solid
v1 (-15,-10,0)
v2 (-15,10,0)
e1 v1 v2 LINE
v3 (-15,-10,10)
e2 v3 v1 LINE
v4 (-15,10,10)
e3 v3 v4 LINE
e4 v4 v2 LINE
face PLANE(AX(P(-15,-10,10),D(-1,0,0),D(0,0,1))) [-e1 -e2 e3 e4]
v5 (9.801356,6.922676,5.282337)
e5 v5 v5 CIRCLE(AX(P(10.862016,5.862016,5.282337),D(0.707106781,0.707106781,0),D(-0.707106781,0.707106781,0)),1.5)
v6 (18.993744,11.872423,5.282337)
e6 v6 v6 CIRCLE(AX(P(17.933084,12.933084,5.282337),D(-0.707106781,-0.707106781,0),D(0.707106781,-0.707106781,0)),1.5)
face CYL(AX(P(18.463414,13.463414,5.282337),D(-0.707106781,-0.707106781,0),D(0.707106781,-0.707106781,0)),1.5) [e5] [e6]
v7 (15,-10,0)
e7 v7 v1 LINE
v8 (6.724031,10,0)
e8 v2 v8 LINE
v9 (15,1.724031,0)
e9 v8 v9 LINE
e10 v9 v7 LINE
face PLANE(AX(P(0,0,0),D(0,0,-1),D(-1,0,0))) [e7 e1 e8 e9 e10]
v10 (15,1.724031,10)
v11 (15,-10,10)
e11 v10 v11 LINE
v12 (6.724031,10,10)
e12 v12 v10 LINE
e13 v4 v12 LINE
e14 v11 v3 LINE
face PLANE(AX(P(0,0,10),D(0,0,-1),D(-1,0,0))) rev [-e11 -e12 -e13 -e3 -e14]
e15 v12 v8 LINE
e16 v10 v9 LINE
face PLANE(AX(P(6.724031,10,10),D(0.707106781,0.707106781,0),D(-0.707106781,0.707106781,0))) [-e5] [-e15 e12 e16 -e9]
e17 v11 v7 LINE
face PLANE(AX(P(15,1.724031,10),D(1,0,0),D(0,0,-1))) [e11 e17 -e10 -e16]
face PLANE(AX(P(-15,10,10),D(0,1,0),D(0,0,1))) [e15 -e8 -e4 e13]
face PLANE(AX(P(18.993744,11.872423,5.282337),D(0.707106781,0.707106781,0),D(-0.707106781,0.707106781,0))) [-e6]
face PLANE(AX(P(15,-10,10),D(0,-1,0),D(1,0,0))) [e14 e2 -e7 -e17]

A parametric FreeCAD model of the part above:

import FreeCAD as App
import Part
import Sketcher
from FreeCAD import Vector
Q = App.Units.Quantity


def add_polygon(sketch, points):
    """Adds a closed chain of lines whose ends are joined by coincident constraints."""
    first, n = sketch.GeometryCount, len(points)
    for a, b in zip(points, points[1:] + points[:1]):
        sketch.addGeometry(Part.LineSegment(App.Vector(*a, 0), App.Vector(*b, 0)), False)
    for i in range(n):
        sketch.addConstraint(Sketcher.Constraint("Coincident", first + i, 2, first + (i + 1) % n, 1))

doc = App.newDocument("Part")
body = doc.addObject("PartDesign::Body", "Body")

sketch1 = doc.addObject("Sketcher::SketchObject", "Sketch")
body.addObject(sketch1)
sketch1.AttachmentSupport = (doc.XY_Plane, [""])
sketch1.MapMode = "FlatFace"
add_polygon(sketch1, [(15, 2), (15, -10), (-15, -10), (-15, 10), (7, 10)])
sketch1.addConstraint([
    Sketcher.Constraint("Vertical", 0),
    Sketcher.Constraint("Horizontal", 1),
    Sketcher.Constraint("Vertical", 2),
    Sketcher.Constraint("Horizontal", 3),
    Sketcher.Constraint("Symmetric", 0, 2, 2, 2, -1, 1),
    Sketcher.Constraint("DistanceX", 1, 2, 1, 1, 30.0),
    Sketcher.Constraint("DistanceY", 2, 1, 2, 2, 20.0),
    Sketcher.Constraint("Angle", 4, Q("-45 deg")),
    Sketcher.Constraint("DistanceX", 3, 1, 3, 2, 21.724031),
])
pad1 = doc.addObject("PartDesign::Pad", "Pad")
body.addObject(pad1)
pad1.Profile = sketch1
pad1.Length = 10

sketch2 = doc.addObject("Sketcher::SketchObject", "Sketch001")
body.addObject(sketch2)
sketch2.AttachmentSupport = (doc.XY_Plane, [""])
sketch2.MapMode = "FlatFace"
sketch2.AttachmentOffset = App.Placement(Vector(0, 0, 5.282337), App.Rotation())
add_polygon(sketch2, [(19, 11.9), (17.9, 12.9), (10.9, 5.9), (11.9, 4.8)])
sketch2.addGeometry(Part.LineSegment(Vector(17.9, 12.9, 0), Vector(10.9, 5.9, 0)), True)
sketch2.addConstraint([
    Sketcher.Constraint("Coincident", 4, 1, 0, 2),
    Sketcher.Constraint("Coincident", 4, 2, 1, 2),
    Sketcher.Constraint("Perpendicular", 0, 1),
    Sketcher.Constraint("Perpendicular", 1, 2),
    Sketcher.Constraint("Perpendicular", 2, 3),
    Sketcher.Constraint("Angle", 0, Q("135 deg")),
    Sketcher.Constraint("Distance", 1, 10.0),
    Sketcher.Constraint("Distance", 0, 1.5),
    Sketcher.Constraint("DistanceX", -1, 1, 0, 2, 17.933083),
    Sketcher.Constraint("DistanceY", -1, 1, 0, 2, 12.933084),
])
revolution = doc.addObject("PartDesign::Revolution", "Revolution")
body.addObject(revolution)
revolution.Profile = sketch2
revolution.ReferenceAxis = (sketch2, ["Axis0"])
revolution.Angle = 360

doc.recompute()
